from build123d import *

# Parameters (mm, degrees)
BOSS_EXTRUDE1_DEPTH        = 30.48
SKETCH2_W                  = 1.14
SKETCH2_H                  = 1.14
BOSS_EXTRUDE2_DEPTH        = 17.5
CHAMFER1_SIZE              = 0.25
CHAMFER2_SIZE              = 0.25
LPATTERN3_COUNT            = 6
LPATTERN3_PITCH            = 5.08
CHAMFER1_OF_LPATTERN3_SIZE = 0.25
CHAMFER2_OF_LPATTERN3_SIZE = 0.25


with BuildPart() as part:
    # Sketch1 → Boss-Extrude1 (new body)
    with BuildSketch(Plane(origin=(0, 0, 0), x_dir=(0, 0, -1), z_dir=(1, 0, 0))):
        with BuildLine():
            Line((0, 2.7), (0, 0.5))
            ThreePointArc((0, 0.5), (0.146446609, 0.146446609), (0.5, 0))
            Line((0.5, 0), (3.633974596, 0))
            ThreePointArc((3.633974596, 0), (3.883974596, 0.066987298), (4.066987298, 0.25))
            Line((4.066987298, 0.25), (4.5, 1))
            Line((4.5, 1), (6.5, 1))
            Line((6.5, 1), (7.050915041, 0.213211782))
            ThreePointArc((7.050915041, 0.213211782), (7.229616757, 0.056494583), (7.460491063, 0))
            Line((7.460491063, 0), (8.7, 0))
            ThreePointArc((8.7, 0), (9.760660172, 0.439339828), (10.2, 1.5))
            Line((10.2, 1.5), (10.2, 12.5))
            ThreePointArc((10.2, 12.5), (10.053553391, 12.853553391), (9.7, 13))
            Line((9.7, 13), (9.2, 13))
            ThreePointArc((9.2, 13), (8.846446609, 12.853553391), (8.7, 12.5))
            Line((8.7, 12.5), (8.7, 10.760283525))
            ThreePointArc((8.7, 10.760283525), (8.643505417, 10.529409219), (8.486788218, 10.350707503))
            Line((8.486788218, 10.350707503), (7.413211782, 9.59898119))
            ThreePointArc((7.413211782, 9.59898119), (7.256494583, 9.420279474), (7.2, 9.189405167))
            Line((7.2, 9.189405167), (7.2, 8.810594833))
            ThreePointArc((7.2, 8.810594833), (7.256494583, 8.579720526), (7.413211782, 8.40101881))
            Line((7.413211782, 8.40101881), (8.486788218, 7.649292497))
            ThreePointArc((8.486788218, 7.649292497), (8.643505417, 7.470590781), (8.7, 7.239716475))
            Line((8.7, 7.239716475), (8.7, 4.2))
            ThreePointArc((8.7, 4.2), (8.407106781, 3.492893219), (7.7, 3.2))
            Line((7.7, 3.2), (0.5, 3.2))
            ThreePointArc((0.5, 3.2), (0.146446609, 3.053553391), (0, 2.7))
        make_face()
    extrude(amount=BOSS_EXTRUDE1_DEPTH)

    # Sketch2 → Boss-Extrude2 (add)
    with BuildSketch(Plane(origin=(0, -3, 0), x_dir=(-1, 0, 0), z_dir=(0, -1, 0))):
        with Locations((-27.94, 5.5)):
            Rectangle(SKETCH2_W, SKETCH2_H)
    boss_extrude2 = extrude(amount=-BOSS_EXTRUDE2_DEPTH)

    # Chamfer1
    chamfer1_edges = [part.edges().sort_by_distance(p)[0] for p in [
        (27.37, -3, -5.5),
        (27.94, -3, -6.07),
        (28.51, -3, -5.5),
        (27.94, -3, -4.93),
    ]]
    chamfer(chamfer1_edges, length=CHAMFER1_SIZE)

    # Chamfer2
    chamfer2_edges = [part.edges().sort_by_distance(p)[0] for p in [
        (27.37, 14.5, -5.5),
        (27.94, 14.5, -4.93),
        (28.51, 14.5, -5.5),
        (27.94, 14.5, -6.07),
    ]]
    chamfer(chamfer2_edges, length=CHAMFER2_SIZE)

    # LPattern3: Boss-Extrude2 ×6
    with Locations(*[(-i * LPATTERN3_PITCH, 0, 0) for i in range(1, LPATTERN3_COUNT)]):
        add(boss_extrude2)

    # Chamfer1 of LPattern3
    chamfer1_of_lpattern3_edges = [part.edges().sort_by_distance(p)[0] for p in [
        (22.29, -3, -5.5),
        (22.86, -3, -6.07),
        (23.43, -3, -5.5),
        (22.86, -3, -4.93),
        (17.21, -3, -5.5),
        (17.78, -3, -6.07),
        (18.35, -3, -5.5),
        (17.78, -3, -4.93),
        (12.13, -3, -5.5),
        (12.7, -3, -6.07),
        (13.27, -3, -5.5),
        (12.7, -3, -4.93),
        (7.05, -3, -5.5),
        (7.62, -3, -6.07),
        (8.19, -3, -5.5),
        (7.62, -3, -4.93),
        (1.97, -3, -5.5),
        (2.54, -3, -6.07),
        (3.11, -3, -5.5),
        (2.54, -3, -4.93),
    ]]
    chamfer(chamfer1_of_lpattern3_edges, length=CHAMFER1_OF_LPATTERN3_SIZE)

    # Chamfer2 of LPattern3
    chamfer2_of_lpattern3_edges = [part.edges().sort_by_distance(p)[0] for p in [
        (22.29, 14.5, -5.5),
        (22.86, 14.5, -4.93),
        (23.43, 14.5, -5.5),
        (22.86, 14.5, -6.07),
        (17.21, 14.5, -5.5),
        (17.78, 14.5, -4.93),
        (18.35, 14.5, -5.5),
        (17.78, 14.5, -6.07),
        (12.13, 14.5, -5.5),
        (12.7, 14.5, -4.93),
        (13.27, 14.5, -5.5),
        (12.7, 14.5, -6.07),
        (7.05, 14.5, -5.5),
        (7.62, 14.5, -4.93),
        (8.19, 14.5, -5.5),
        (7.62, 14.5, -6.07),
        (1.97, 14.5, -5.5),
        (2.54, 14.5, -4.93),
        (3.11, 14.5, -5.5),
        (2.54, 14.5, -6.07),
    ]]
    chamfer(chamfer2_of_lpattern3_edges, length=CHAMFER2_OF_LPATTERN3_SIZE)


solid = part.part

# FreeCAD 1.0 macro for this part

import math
import FreeCAD as App
import Part
import Sketcher

V = App.Vector
Q = App.Units.Quantity


def edges_at(feature, points):
    """Names of the edges that pass closest to the given points."""
    edges = feature.Shape.Edges
    near = lambda p: min(range(len(edges)), key=lambda i: edges[i].distToShape(Part.Vertex(*p))[0])
    return sorted({f"Edge{near(p) + 1}" for p in points})

doc = App.newDocument("Part")
body = doc.addObject("PartDesign::Body", "Body")

sketch1 = doc.addObject("Sketcher::SketchObject", "Sketch")
body.addObject(sketch1)
sketch1.AttachmentSupport = (doc.YZ_Plane, [""])
sketch1.MapMode = "FlatFace"
sketch1.addGeometry([
    Part.LineSegment(V(2.7, 0, 0), V(0.5, 0, 0)),
    Part.ArcOfCircle(Part.Circle(V(0.5, -0.5, 0), V(0, 0, 1), 0.5), math.radians(90), math.radians(180)),
    Part.LineSegment(V(0, -0.5, 0), V(0, -3.63, 0)),
    Part.ArcOfCircle(Part.Circle(V(0.5, -3.63, 0), V(0, 0, 1), 0.5), math.radians(180), math.radians(240)),
    Part.LineSegment(V(0.25, -4.07, 0), V(1, -4.5, 0)),
    Part.LineSegment(V(1, -4.5, 0), V(1, -6.5, 0)),
    Part.LineSegment(V(1, -6.5, 0), V(0.21, -7.05, 0)),
    Part.ArcOfCircle(Part.Circle(V(0.5, -7.46, 0), V(0, 0, 1), 0.5), math.radians(125), math.radians(180)),
    Part.LineSegment(V(0, -7.46, 0), V(0, -8.7, 0)),
    Part.ArcOfCircle(Part.Circle(V(1.5, -8.7, 0), V(0, 0, 1), 1.5), math.radians(180), math.radians(270)),
    Part.LineSegment(V(1.5, -10.2, 0), V(12.5, -10.2, 0)),
    Part.ArcOfCircle(Part.Circle(V(12.5, -9.7, 0), V(0, 0, 1), 0.5), math.radians(-90), math.radians(0)),
    Part.LineSegment(V(13, -9.7, 0), V(13, -9.2, 0)),
    Part.ArcOfCircle(Part.Circle(V(12.5, -9.2, 0), V(0, 0, 1), 0.5), math.radians(0), math.radians(90)),
    Part.LineSegment(V(12.5, -8.7, 0), V(10.76, -8.7, 0)),
    Part.ArcOfCircle(Part.Circle(V(10.76, -8.2, 0), V(0, 0, 1), 0.5), math.radians(-145), math.radians(-90)),
    Part.LineSegment(V(10.35, -8.49, 0), V(9.6, -7.41, 0)),
    Part.ArcOfCircle(Part.Circle(V(9.19, -7.7, 0), V(0, 0, 1), 0.5), math.radians(35), math.radians(90)),
    Part.LineSegment(V(9.19, -7.2, 0), V(8.81, -7.2, 0)),
    Part.ArcOfCircle(Part.Circle(V(8.81, -7.7, 0), V(0, 0, 1), 0.5), math.radians(90), math.radians(145)),
    Part.LineSegment(V(8.4, -7.41, 0), V(7.65, -8.49, 0)),
    Part.ArcOfCircle(Part.Circle(V(7.24, -8.2, 0), V(0, 0, 1), 0.5), math.radians(-90), math.radians(-35)),
    Part.LineSegment(V(7.24, -8.7, 0), V(4.2, -8.7, 0)),
    Part.ArcOfCircle(Part.Circle(V(4.2, -7.7, 0), V(0, 0, 1), 1), math.radians(-180), math.radians(-90)),
    Part.LineSegment(V(3.2, -7.7, 0), V(3.2, -0.5, 0)),
    Part.ArcOfCircle(Part.Circle(V(2.7, -0.5, 0), V(0, 0, 1), 0.5), math.radians(0), math.radians(90)),
], False)
sketch1.addConstraint([
    Sketcher.Constraint("Tangent", 0, 2, 1, 1),
    Sketcher.Constraint("Tangent", 1, 2, 2, 1),
    Sketcher.Constraint("Tangent", 2, 2, 3, 1),
    Sketcher.Constraint("Tangent", 3, 2, 4, 1),
    Sketcher.Constraint("Coincident", 4, 2, 5, 1),
    Sketcher.Constraint("Coincident", 5, 2, 6, 1),
    Sketcher.Constraint("Tangent", 6, 2, 7, 1),
    Sketcher.Constraint("Tangent", 7, 2, 8, 1),
    Sketcher.Constraint("Tangent", 8, 2, 9, 1),
    Sketcher.Constraint("Tangent", 9, 2, 10, 1),
    Sketcher.Constraint("Tangent", 10, 2, 11, 1),
    Sketcher.Constraint("Tangent", 11, 2, 12, 1),
    Sketcher.Constraint("Tangent", 12, 2, 13, 1),
    Sketcher.Constraint("Tangent", 13, 2, 14, 1),
    Sketcher.Constraint("Tangent", 14, 2, 15, 2),
    Sketcher.Constraint("Tangent", 15, 1, 16, 1),
    Sketcher.Constraint("Tangent", 16, 2, 17, 1),
    Sketcher.Constraint("Tangent", 17, 2, 18, 1),
    Sketcher.Constraint("Tangent", 18, 2, 19, 1),
    Sketcher.Constraint("Tangent", 19, 2, 20, 1),
    Sketcher.Constraint("Tangent", 20, 2, 21, 2),
    Sketcher.Constraint("Tangent", 21, 1, 22, 1),
    Sketcher.Constraint("Tangent", 22, 2, 23, 2),
    Sketcher.Constraint("Tangent", 23, 1, 24, 1),
    Sketcher.Constraint("Tangent", 24, 2, 25, 1),
    Sketcher.Constraint("Tangent", 25, 2, 0, 1),
    Sketcher.Constraint("Horizontal", 0),
    Sketcher.Constraint("Vertical", 2),
    Sketcher.Constraint("Vertical", 5),
    Sketcher.Constraint("Vertical", 8),
    Sketcher.Constraint("Horizontal", 10),
    Sketcher.Constraint("Vertical", 12),
    Sketcher.Constraint("Horizontal", 14),
    Sketcher.Constraint("Horizontal", 18),
    Sketcher.Constraint("Horizontal", 22),
    Sketcher.Constraint("Vertical", 24),
    Sketcher.Constraint("Equal", 1, 3),
    Sketcher.Constraint("Equal", 3, 7),
    Sketcher.Constraint("Equal", 7, 11),
    Sketcher.Constraint("Equal", 11, 13),
    Sketcher.Constraint("Equal", 13, 15),
    Sketcher.Constraint("Equal", 15, 17),
    Sketcher.Constraint("Equal", 17, 19),
    Sketcher.Constraint("Equal", 19, 21),
    Sketcher.Constraint("Equal", 21, 25),
    Sketcher.Constraint("PointOnObject", 0, 2, -1),
    Sketcher.Constraint("PointOnObject", 1, 2, -2),
    Sketcher.Constraint("PointOnObject", 7, 2, -2),
    Sketcher.Constraint("Perpendicular", 6, 16),
    Sketcher.Constraint("Horizontal", 15, 3, 21, 3),
    Sketcher.Constraint("Horizontal", 19, 3, 23, 3),
    Sketcher.Constraint("Horizontal", 8, 2, 13, 2),
    Sketcher.Constraint("Horizontal", 16, 2, 19, 2),
    Sketcher.Constraint("Radius", 23, Q("1 mm")),
    Sketcher.Constraint("Radius", 1, Q("0.5 mm")),
    Sketcher.Constraint("Radius", 9, Q("1.5 mm")),
    Sketcher.Constraint("DistanceX", 10, 1, 10, 2, Q("11 mm")),
    Sketcher.Constraint("DistanceY", 5, 2, 5, 1, Q("2 mm")),
    Sketcher.Constraint("Angle", 4, Q("-30 deg")),
    Sketcher.Constraint("Angle", 6, Q("-145 deg")),
    Sketcher.Constraint("DistanceX", 0, 2, 0, 1, Q("2.2 mm")),
    Sketcher.Constraint("DistanceY", 24, 1, 24, 2, Q("7.2 mm")),
    Sketcher.Constraint("DistanceX", -1, 1, 4, 2, Q("1 mm")),
    Sketcher.Constraint("DistanceY", 4, 2, 1, 3, Q("4 mm")),
    Sketcher.Constraint("DistanceX", 18, 2, 18, 1, Q("0.37881 mm")),
    Sketcher.Constraint("DistanceX", 14, 2, 14, 1, Q("1.739716 mm")),
])
pad1 = doc.addObject("PartDesign::Pad", "Pad")
body.addObject(pad1)
pad1.Profile = sketch1
pad1.Length = 30.48

sketch2 = doc.addObject("Sketcher::SketchObject", "Sketch001")
body.addObject(sketch2)
sketch2.AttachmentSupport = (doc.XZ_Plane, [""])
sketch2.MapMode = "FlatFace"
sketch2.AttachmentOffset = App.Placement(V(0, 0, 3), App.Rotation())
sketch2.addGeometry([
    Part.LineSegment(V(28.5, -6.1, 0), V(28.5, -4.9, 0)),
    Part.LineSegment(V(28.5, -4.9, 0), V(27.4, -4.9, 0)),
    Part.LineSegment(V(27.4, -4.9, 0), V(27.4, -6.1, 0)),
    Part.LineSegment(V(27.4, -6.1, 0), V(28.5, -6.1, 0)),
], False)
sketch2.addConstraint([
    Sketcher.Constraint("Coincident", 0, 2, 1, 1),
    Sketcher.Constraint("Coincident", 1, 2, 2, 1),
    Sketcher.Constraint("Coincident", 2, 2, 3, 1),
    Sketcher.Constraint("Coincident", 3, 2, 0, 1),
    Sketcher.Constraint("Vertical", 0),
    Sketcher.Constraint("Horizontal", 1),
    Sketcher.Constraint("Vertical", 2),
    Sketcher.Constraint("Horizontal", 3),
    Sketcher.Constraint("Equal", 3, 0),
    Sketcher.Constraint("DistanceX", 1, 2, 1, 1, Q("1.14 mm")),
    Sketcher.Constraint("DistanceX", -1, 1, 0, 2, Q("28.51 mm")),
    Sketcher.Constraint("DistanceY", 0, 2, -1, 1, Q("4.93 mm")),
])
pad2 = doc.addObject("PartDesign::Pad", "Pad001")
body.addObject(pad2)
pad2.Profile = sketch2
pad2.Length = 17.5
pad2.Reversed = True
doc.recompute()

chamfer = doc.addObject("PartDesign::Chamfer", "Chamfer")
body.addObject(chamfer)
chamfer.Base = (pad2, edges_at(pad2, [
    (27.37, -3, -5.5),
    (27.94, -3, -6.07),
    (28.51, -3, -5.5),
    (27.94, -3, -4.93),
]))
chamfer.Size = 0.25
doc.recompute()

chamfer2 = doc.addObject("PartDesign::Chamfer", "Chamfer001")
body.addObject(chamfer2)
chamfer2.Base = (chamfer, edges_at(chamfer, [
    (27.37, 14.5, -5.5),
    (27.94, 14.5, -4.93),
    (28.51, 14.5, -5.5),
    (27.94, 14.5, -6.07),
]))
chamfer2.Size = 0.25
doc.recompute()

linearpattern = doc.addObject("PartDesign::LinearPattern", "LinearPattern")
body.addObject(linearpattern)
linearpattern.Originals = [pad2]
linearpattern.Direction = (doc.X_Axis, [""])
linearpattern.Mode = "offset"
linearpattern.Offset = 5.08
linearpattern.Occurrences = 6
linearpattern.Reversed = True
body.Tip = linearpattern
doc.recompute()

chamfer3 = doc.addObject("PartDesign::Chamfer", "Chamfer002")
body.addObject(chamfer3)
chamfer3.Base = (linearpattern, edges_at(linearpattern, [
    (22.29, -3, -5.5),
    (22.86, -3, -6.07),
    (23.43, -3, -5.5),
    (22.86, -3, -4.93),
    (17.21, -3, -5.5),
    (17.78, -3, -6.07),
    (18.35, -3, -5.5),
    (17.78, -3, -4.93),
    (12.13, -3, -5.5),
    (12.7, -3, -6.07),
    (13.27, -3, -5.5),
    (12.7, -3, -4.93),
    (7.05, -3, -5.5),
    (7.62, -3, -6.07),
    (8.19, -3, -5.5),
    (7.62, -3, -4.93),
    (1.97, -3, -5.5),
    (2.54, -3, -6.07),
    (3.11, -3, -5.5),
    (2.54, -3, -4.93),
]))
chamfer3.Size = 0.25
doc.recompute()

chamfer4 = doc.addObject("PartDesign::Chamfer", "Chamfer003")
body.addObject(chamfer4)
chamfer4.Base = (chamfer3, edges_at(chamfer3, [
    (22.29, 14.5, -5.5),
    (22.86, 14.5, -4.93),
    (23.43, 14.5, -5.5),
    (22.86, 14.5, -6.07),
    (17.21, 14.5, -5.5),
    (17.78, 14.5, -4.93),
    (18.35, 14.5, -5.5),
    (17.78, 14.5, -6.07),
    (12.13, 14.5, -5.5),
    (12.7, 14.5, -4.93),
    (13.27, 14.5, -5.5),
    (12.7, 14.5, -6.07),
    (7.05, 14.5, -5.5),
    (7.62, 14.5, -4.93),
    (8.19, 14.5, -5.5),
    (7.62, 14.5, -6.07),
    (1.97, 14.5, -5.5),
    (2.54, 14.5, -4.93),
    (3.11, 14.5, -5.5),
    (2.54, 14.5, -6.07),
]))
chamfer4.Size = 0.25

doc.recompute()
